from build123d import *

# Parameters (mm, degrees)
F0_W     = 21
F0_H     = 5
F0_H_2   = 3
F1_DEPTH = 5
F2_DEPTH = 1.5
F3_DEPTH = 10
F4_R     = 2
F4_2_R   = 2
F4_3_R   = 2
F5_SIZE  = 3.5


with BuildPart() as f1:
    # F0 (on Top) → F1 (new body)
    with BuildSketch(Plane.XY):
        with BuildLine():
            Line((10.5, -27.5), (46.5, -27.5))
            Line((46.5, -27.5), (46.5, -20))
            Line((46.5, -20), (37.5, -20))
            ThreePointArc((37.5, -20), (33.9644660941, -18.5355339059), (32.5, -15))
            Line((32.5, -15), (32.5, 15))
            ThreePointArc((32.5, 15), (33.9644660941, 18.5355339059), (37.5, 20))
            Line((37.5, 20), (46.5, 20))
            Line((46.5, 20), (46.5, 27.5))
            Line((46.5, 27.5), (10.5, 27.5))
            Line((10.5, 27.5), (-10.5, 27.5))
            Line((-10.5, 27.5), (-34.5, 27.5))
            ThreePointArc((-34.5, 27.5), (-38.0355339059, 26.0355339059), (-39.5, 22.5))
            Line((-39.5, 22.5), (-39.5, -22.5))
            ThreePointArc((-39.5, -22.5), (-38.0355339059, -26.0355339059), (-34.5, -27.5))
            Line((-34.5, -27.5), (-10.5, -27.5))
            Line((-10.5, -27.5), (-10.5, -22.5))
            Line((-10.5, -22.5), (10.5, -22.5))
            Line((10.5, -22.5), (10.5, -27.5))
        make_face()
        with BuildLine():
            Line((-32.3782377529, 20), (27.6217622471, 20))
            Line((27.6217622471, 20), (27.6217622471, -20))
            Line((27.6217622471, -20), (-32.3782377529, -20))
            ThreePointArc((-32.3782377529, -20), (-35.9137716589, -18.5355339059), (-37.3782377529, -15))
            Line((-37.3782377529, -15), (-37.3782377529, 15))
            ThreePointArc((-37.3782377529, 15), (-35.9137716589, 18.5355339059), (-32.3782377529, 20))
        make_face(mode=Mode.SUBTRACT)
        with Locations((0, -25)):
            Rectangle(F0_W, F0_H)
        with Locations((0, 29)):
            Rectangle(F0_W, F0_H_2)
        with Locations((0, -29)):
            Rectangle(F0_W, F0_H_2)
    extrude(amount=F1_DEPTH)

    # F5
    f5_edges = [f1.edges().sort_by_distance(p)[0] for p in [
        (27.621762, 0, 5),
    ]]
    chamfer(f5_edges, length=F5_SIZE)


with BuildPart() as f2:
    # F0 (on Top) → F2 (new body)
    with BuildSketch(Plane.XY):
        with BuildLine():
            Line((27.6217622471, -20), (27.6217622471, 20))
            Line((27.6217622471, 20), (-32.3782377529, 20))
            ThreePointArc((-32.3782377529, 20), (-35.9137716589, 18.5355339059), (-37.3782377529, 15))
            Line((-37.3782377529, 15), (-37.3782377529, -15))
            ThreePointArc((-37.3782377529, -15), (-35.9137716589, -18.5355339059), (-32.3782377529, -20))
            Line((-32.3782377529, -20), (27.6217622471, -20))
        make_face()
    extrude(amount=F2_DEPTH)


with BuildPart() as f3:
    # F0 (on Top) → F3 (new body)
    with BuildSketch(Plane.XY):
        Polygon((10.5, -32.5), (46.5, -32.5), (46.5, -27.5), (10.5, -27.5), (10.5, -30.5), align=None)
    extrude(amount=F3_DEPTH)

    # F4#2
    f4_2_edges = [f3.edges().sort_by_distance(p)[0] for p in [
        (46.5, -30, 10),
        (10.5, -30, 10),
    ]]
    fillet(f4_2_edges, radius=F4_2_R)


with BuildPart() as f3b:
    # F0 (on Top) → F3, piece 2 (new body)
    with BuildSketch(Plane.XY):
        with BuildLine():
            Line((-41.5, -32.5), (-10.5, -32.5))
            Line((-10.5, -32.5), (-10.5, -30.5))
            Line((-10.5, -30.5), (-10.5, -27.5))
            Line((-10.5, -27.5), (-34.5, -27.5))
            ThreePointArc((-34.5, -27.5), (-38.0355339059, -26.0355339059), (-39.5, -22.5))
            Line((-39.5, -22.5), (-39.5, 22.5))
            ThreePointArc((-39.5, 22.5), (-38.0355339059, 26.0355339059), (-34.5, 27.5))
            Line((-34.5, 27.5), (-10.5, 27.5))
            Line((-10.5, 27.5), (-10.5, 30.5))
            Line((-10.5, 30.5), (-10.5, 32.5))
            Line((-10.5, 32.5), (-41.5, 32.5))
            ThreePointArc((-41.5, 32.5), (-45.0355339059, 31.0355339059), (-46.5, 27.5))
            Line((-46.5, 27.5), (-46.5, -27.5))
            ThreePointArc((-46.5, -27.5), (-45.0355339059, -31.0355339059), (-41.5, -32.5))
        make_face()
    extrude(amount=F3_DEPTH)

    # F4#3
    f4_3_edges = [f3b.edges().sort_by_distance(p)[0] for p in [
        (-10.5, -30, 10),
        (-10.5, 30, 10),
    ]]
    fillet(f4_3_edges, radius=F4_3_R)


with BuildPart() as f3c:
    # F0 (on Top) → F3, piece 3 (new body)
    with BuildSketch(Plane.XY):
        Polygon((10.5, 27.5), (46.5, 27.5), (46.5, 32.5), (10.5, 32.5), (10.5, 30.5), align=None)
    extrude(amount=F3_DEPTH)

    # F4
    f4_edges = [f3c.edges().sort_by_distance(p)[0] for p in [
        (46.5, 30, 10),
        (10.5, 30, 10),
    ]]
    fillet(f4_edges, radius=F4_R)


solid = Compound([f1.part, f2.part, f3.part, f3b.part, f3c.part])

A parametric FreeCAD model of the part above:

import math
import FreeCAD as App
import Part
import Sketcher
from FreeCAD import Vector


def edges_at(feature, points):
    """Names of the edges that pass closest to the given points."""
    edges = feature.Shape.Edges
    near = lambda p: min(range(len(edges)), key=lambda i: edges[i].distToShape(Part.Vertex(*p))[0])
    return sorted({f"Edge{near(p) + 1}" for p in points})

doc = App.newDocument("Part")
params = doc.addObject("Spreadsheet::Sheet", "Params")
for row, (alias, value) in enumerate([
    ("sketch1_radius", "5 mm"),
    ("sketch1_width", "9 mm"),
    ("sketch1_width2", "36 mm"),
    ("sketch1_width3", "21 mm"),
    ("sketch1_width4", "24 mm"),
    ("pad1_length", "5 mm"),
    ("chamfer_size", "3.5 mm"),
    ("sketch2_radius", "5 mm"),
    ("sketch2_width", "60 mm"),
    ("sketch2_height", "40 mm"),
    ("pad2_length", "1.5 mm"),
    ("sketch3_width", "36 mm"),
    ("sketch3_height", "5 mm"),
    ("pad3_length", "10 mm"),
    ("fillet_radius", "2 mm"),
    ("sketch4_radius", "5 mm"),
    ("sketch4_width", "31 mm"),
    ("sketch4_width2", "24 mm"),
    ("sketch4_height", "45 mm"),
    ("pad4_length", "10 mm"),
    ("fillet2_radius", "2 mm"),
    ("sketch5_width", "36 mm"),
    ("sketch5_height", "5 mm"),
    ("pad5_length", "10 mm"),
    ("fillet3_radius", "2 mm"),
], start=1):
    params.set(f"A{row}", alias)
    params.set(f"B{row}", "=" + value)
    params.setAlias(f"B{row}", alias)

body = doc.addObject("PartDesign::Body", "Body")

sketch1 = body.newObject("Sketcher::SketchObject", "Sketch")
sketch1.AttachmentSupport = (doc.getObject("XY_Plane"), [""])
sketch1.MapMode = "FlatFace"
sketch1.addGeometry([
    Part.LineSegment(Vector(46.5, -27.5, 0), Vector(46.5, -20, 0)),
    Part.LineSegment(Vector(46.5, -20, 0), Vector(37.5, -20, 0)),
    Part.ArcOfCircle(Part.Circle(Vector(37.5, -15, 0), Vector(0, 0, 1), 5), math.radians(180), math.radians(270)),
    Part.LineSegment(Vector(32.5, -15, 0), Vector(32.5, 15, 0)),
    Part.ArcOfCircle(Part.Circle(Vector(37.5, 15, 0), Vector(0, 0, 1), 5), math.radians(90), math.radians(180)),
    Part.LineSegment(Vector(37.5, 20, 0), Vector(46.5, 20, 0)),
    Part.LineSegment(Vector(46.5, 20, 0), Vector(46.5, 27.5, 0)),
    Part.LineSegment(Vector(46.5, 27.5, 0), Vector(10.5, 27.5, 0)),
    Part.LineSegment(Vector(10.5, 27.5, 0), Vector(10.5, 30.5, 0)),
    Part.LineSegment(Vector(10.5, 30.5, 0), Vector(-10.5, 30.5, 0)),
    Part.LineSegment(Vector(-10.5, 30.5, 0), Vector(-10.5, 27.5, 0)),
    Part.LineSegment(Vector(-10.5, 27.5, 0), Vector(-34.5, 27.5, 0)),
    Part.ArcOfCircle(Part.Circle(Vector(-34.5, 22.5, 0), Vector(0, 0, 1), 5), math.radians(90), math.radians(180)),
    Part.LineSegment(Vector(-39.5, 22.5, 0), Vector(-39.5, -22.5, 0)),
    Part.ArcOfCircle(Part.Circle(Vector(-34.5, -22.5, 0), Vector(0, 0, 1), 5), math.radians(180), math.radians(270)),
    Part.LineSegment(Vector(-34.5, -27.5, 0), Vector(-10.5, -27.5, 0)),
    Part.LineSegment(Vector(-10.5, -27.5, 0), Vector(-10.5, -30.5, 0)),
    Part.LineSegment(Vector(-10.5, -30.5, 0), Vector(10.5, -30.5, 0)),
    Part.LineSegment(Vector(10.5, -30.5, 0), Vector(10.5, -27.5, 0)),
    Part.LineSegment(Vector(10.5, -27.5, 0), Vector(46.5, -27.5, 0)),
    Part.ArcOfCircle(Part.Circle(Vector(-32.378238, 15, 0), Vector(0, 0, 1), 5), math.radians(90), math.radians(180)),
    Part.LineSegment(Vector(-32.378238, 20, 0), Vector(27.621762, 20, 0)),
    Part.LineSegment(Vector(27.621762, 20, 0), Vector(27.621762, -20, 0)),
    Part.LineSegment(Vector(27.621762, -20, 0), Vector(-32.378238, -20, 0)),
    Part.ArcOfCircle(Part.Circle(Vector(-32.378238, -15, 0), Vector(0, 0, 1), 5), math.radians(180), math.radians(270)),
    Part.LineSegment(Vector(-37.378238, -15, 0), Vector(-37.378238, 15, 0)),
], False)
sketch1.addConstraint([
    Sketcher.Constraint("Coincident", 0, 2, 1, 1),
    Sketcher.Constraint("Tangent", 1, 2, 2, 2),
    Sketcher.Constraint("Tangent", 2, 1, 3, 1),
    Sketcher.Constraint("Tangent", 3, 2, 4, 2),
    Sketcher.Constraint("Tangent", 4, 1, 5, 1),
    Sketcher.Constraint("Coincident", 5, 2, 6, 1),
    Sketcher.Constraint("Coincident", 6, 2, 7, 1),
    Sketcher.Constraint("Coincident", 7, 2, 8, 1),
    Sketcher.Constraint("Coincident", 8, 2, 9, 1),
    Sketcher.Constraint("Coincident", 9, 2, 10, 1),
    Sketcher.Constraint("Coincident", 10, 2, 11, 1),
    Sketcher.Constraint("Tangent", 11, 2, 12, 1),
    Sketcher.Constraint("Tangent", 12, 2, 13, 1),
    Sketcher.Constraint("Tangent", 13, 2, 14, 1),
    Sketcher.Constraint("Tangent", 14, 2, 15, 1),
    Sketcher.Constraint("Coincident", 15, 2, 16, 1),
    Sketcher.Constraint("Coincident", 16, 2, 17, 1),
    Sketcher.Constraint("Coincident", 17, 2, 18, 1),
    Sketcher.Constraint("Coincident", 18, 2, 19, 1),
    Sketcher.Constraint("Coincident", 19, 2, 0, 1),
    Sketcher.Constraint("Tangent", 20, 1, 21, 1),
    Sketcher.Constraint("Coincident", 21, 2, 22, 1),
    Sketcher.Constraint("Coincident", 22, 2, 23, 1),
    Sketcher.Constraint("Tangent", 23, 2, 24, 2),
    Sketcher.Constraint("Tangent", 24, 1, 25, 1),
    Sketcher.Constraint("Tangent", 25, 2, 20, 2),
    Sketcher.Constraint("Vertical", 0),
    Sketcher.Constraint("Horizontal", 1),
    Sketcher.Constraint("Vertical", 3),
    Sketcher.Constraint("Horizontal", 5),
    Sketcher.Constraint("Vertical", 6),
    Sketcher.Constraint("Horizontal", 7),
    Sketcher.Constraint("Vertical", 8),
    Sketcher.Constraint("Horizontal", 9),
    Sketcher.Constraint("Vertical", 10),
    Sketcher.Constraint("Horizontal", 11),
    Sketcher.Constraint("Vertical", 13),
    Sketcher.Constraint("Horizontal", 15),
    Sketcher.Constraint("Vertical", 16),
    Sketcher.Constraint("Horizontal", 17),
    Sketcher.Constraint("Vertical", 18),
    Sketcher.Constraint("Horizontal", 19),
    Sketcher.Constraint("Horizontal", 21),
    Sketcher.Constraint("Vertical", 22),
    Sketcher.Constraint("Horizontal", 23),
    Sketcher.Constraint("Vertical", 25),
    Sketcher.Constraint("Equal", 2, 4),
    Sketcher.Constraint("Equal", 4, 12),
    Sketcher.Constraint("Equal", 12, 14),
    Sketcher.Constraint("Equal", 14, 20),
    Sketcher.Constraint("Equal", 20, 24),
    Sketcher.Constraint("Symmetric", 7, 2, 15, 2, -1, 1),
    Sketcher.Constraint("Symmetric", 9, 2, 17, 2, -1, 1),
    Sketcher.Constraint("Symmetric", 7, 2, 10, 2, -2),
    Sketcher.Constraint("Symmetric", 0, 2, 5, 2, -1),
    Sketcher.Constraint("Horizontal", 4, 3, 20, 3),
    Sketcher.Constraint("Horizontal", 2, 3, 24, 3),
    Sketcher.Constraint("Horizontal", 15, 2, 18, 2),
    Sketcher.Constraint("Radius", 2, 5.0),
    Sketcher.Constraint("DistanceX", 1, 2, 1, 1, 9.0),
    Sketcher.Constraint("DistanceX", 7, 2, 7, 1, 36.0),
    Sketcher.Constraint("DistanceX", 9, 2, 9, 1, 21.0),
    Sketcher.Constraint("DistanceX", 11, 2, 11, 1, 24.0),
    Sketcher.Constraint("DistanceX", 21, 1, 21, 2, 60.0),
    Sketcher.Constraint("DistanceY", 3, 1, 3, 2, 30.0),
    Sketcher.Constraint("DistanceY", 8, 1, 8, 2, 3.0),
    Sketcher.Constraint("DistanceY", 13, 2, 13, 1, 45.0),
    Sketcher.Constraint("DistanceX", 20, 3, -1, 1, 32.378238),
])
sketch1.setExpression("Constraints[58]", "Params.sketch1_radius")
sketch1.setExpression("Constraints[59]", "Params.sketch1_width")
sketch1.setExpression("Constraints[60]", "Params.sketch1_width2")
sketch1.setExpression("Constraints[61]", "Params.sketch1_width3")
sketch1.setExpression("Constraints[62]", "Params.sketch1_width4")
pad1 = body.newObject("PartDesign::Pad", "Pad")
pad1.Profile = sketch1
pad1.setExpression("Length", "Params.pad1_length")
doc.recompute()

chamfer = body.newObject("PartDesign::Chamfer", "Chamfer")
chamfer.Base = (pad1, edges_at(pad1, [(27.622, 0, 5)]))
chamfer.setExpression("Size", "Params.chamfer_size")
body2 = doc.addObject("PartDesign::Body", "Body001")

sketch2 = body2.newObject("Sketcher::SketchObject", "Sketch001")
sketch2.AttachmentSupport = (doc.getObject("XY_Plane001"), [""])
sketch2.MapMode = "FlatFace"
sketch2.addGeometry([
    Part.LineSegment(Vector(27.621762, -20, 0), Vector(27.621762, 20, 0)),
    Part.LineSegment(Vector(27.621762, 20, 0), Vector(-32.378238, 20, 0)),
    Part.ArcOfCircle(Part.Circle(Vector(-32.378238, 15, 0), Vector(0, 0, 1), 5), math.radians(90), math.radians(180)),
    Part.LineSegment(Vector(-37.378238, 15, 0), Vector(-37.378238, -15, 0)),
    Part.ArcOfCircle(Part.Circle(Vector(-32.378238, -15, 0), Vector(0, 0, 1), 5), math.radians(180), math.radians(270)),
    Part.LineSegment(Vector(-32.378238, -20, 0), Vector(27.621762, -20, 0)),
], False)
sketch2.addConstraint([
    Sketcher.Constraint("Coincident", 0, 2, 1, 1),
    Sketcher.Constraint("Tangent", 1, 2, 2, 1),
    Sketcher.Constraint("Tangent", 2, 2, 3, 1),
    Sketcher.Constraint("Tangent", 3, 2, 4, 1),
    Sketcher.Constraint("Tangent", 4, 2, 5, 1),
    Sketcher.Constraint("Coincident", 5, 2, 0, 1),
    Sketcher.Constraint("Vertical", 0),
    Sketcher.Constraint("Horizontal", 1),
    Sketcher.Constraint("Vertical", 3),
    Sketcher.Constraint("Horizontal", 5),
    Sketcher.Constraint("Equal", 2, 4),
    Sketcher.Constraint("Radius", 2, 5.0),
    Sketcher.Constraint("DistanceX", 1, 2, 1, 1, 60.0),
    Sketcher.Constraint("DistanceY", 0, 1, 0, 2, 40.0),
    Sketcher.Constraint("DistanceY", -1, 1, 2, 3, 15.0),
    Sketcher.Constraint("DistanceX", 2, 3, -1, 1, 32.378238),
])
sketch2.setExpression("Constraints[11]", "Params.sketch2_radius")
sketch2.setExpression("Constraints[12]", "Params.sketch2_width")
sketch2.setExpression("Constraints[13]", "Params.sketch2_height")
pad2 = body2.newObject("PartDesign::Pad", "Pad001")
pad2.Profile = sketch2
pad2.setExpression("Length", "Params.pad2_length")
body3 = doc.addObject("PartDesign::Body", "Body002")

sketch3 = body3.newObject("Sketcher::SketchObject", "Sketch002")
sketch3.AttachmentSupport = (doc.getObject("XY_Plane002"), [""])
sketch3.MapMode = "FlatFace"
sketch3.addGeometry([
    Part.LineSegment(Vector(10.5, -32.5, 0), Vector(46.5, -32.5, 0)),
    Part.LineSegment(Vector(46.5, -32.5, 0), Vector(46.5, -27.5, 0)),
    Part.LineSegment(Vector(46.5, -27.5, 0), Vector(10.5, -27.5, 0)),
    Part.LineSegment(Vector(10.5, -27.5, 0), Vector(10.5, -32.5, 0)),
], False)
sketch3.addConstraint([
    Sketcher.Constraint("Coincident", 0, 2, 1, 1),
    Sketcher.Constraint("Coincident", 1, 2, 2, 1),
    Sketcher.Constraint("Coincident", 2, 2, 3, 1),
    Sketcher.Constraint("Coincident", 3, 2, 0, 1),
    Sketcher.Constraint("Horizontal", 0),
    Sketcher.Constraint("Vertical", 1),
    Sketcher.Constraint("Horizontal", 2),
    Sketcher.Constraint("Vertical", 3),
    Sketcher.Constraint("DistanceX", 0, 1, 0, 2, 36.0),
    Sketcher.Constraint("DistanceY", 1, 1, 1, 2, 5.0),
    Sketcher.Constraint("DistanceX", -1, 1, 0, 2, 46.5),
    Sketcher.Constraint("DistanceY", 0, 2, -1, 1, 32.5),
])
sketch3.setExpression("Constraints[8]", "Params.sketch3_width")
sketch3.setExpression("Constraints[9]", "Params.sketch3_height")
pad3 = body3.newObject("PartDesign::Pad", "Pad002")
pad3.Profile = sketch3
pad3.setExpression("Length", "Params.pad3_length")
doc.recompute()

fillet = body3.newObject("PartDesign::Fillet", "Fillet")
fillet.Base = (pad3, edges_at(pad3, [(46.5, -30, 10), (10.5, -30, 10)]))
fillet.setExpression("Radius", "Params.fillet_radius")
body4 = doc.addObject("PartDesign::Body", "Body003")

sketch4 = body4.newObject("Sketcher::SketchObject", "Sketch003")
sketch4.AttachmentSupport = (doc.getObject("XY_Plane003"), [""])
sketch4.MapMode = "FlatFace"
sketch4.addGeometry([
    Part.LineSegment(Vector(-41.5, -32.5, 0), Vector(-10.5, -32.5, 0)),
    Part.LineSegment(Vector(-10.5, -32.5, 0), Vector(-10.5, -27.5, 0)),
    Part.LineSegment(Vector(-10.5, -27.5, 0), Vector(-34.5, -27.5, 0)),
    Part.ArcOfCircle(Part.Circle(Vector(-34.5, -22.5, 0), Vector(0, 0, 1), 5), math.radians(180), math.radians(270)),
    Part.LineSegment(Vector(-39.5, -22.5, 0), Vector(-39.5, 22.5, 0)),
    Part.ArcOfCircle(Part.Circle(Vector(-34.5, 22.5, 0), Vector(0, 0, 1), 5), math.radians(90), math.radians(180)),
    Part.LineSegment(Vector(-34.5, 27.5, 0), Vector(-10.5, 27.5, 0)),
    Part.LineSegment(Vector(-10.5, 27.5, 0), Vector(-10.5, 32.5, 0)),
    Part.LineSegment(Vector(-10.5, 32.5, 0), Vector(-41.5, 32.5, 0)),
    Part.ArcOfCircle(Part.Circle(Vector(-41.5, 27.5, 0), Vector(0, 0, 1), 5), math.radians(90), math.radians(180)),
    Part.LineSegment(Vector(-46.5, 27.5, 0), Vector(-46.5, -27.5, 0)),
    Part.ArcOfCircle(Part.Circle(Vector(-41.5, -27.5, 0), Vector(0, 0, 1), 5), math.radians(180), math.radians(270)),
], False)
sketch4.addConstraint([
    Sketcher.Constraint("Coincident", 0, 2, 1, 1),
    Sketcher.Constraint("Coincident", 1, 2, 2, 1),
    Sketcher.Constraint("Tangent", 2, 2, 3, 2),
    Sketcher.Constraint("Tangent", 3, 1, 4, 1),
    Sketcher.Constraint("Tangent", 4, 2, 5, 2),
    Sketcher.Constraint("Tangent", 5, 1, 6, 1),
    Sketcher.Constraint("Coincident", 6, 2, 7, 1),
    Sketcher.Constraint("Coincident", 7, 2, 8, 1),
    Sketcher.Constraint("Tangent", 8, 2, 9, 1),
    Sketcher.Constraint("Tangent", 9, 2, 10, 1),
    Sketcher.Constraint("Tangent", 10, 2, 11, 1),
    Sketcher.Constraint("Tangent", 11, 2, 0, 1),
    Sketcher.Constraint("Horizontal", 0),
    Sketcher.Constraint("Vertical", 1),
    Sketcher.Constraint("Horizontal", 2),
    Sketcher.Constraint("Vertical", 4),
    Sketcher.Constraint("Horizontal", 6),
    Sketcher.Constraint("Vertical", 7),
    Sketcher.Constraint("Horizontal", 8),
    Sketcher.Constraint("Vertical", 10),
    Sketcher.Constraint("Equal", 3, 5),
    Sketcher.Constraint("Equal", 5, 9),
    Sketcher.Constraint("Equal", 9, 11),
    Sketcher.Constraint("Symmetric", 1, 2, 6, 2, -1),
    Sketcher.Constraint("Horizontal", 11, 3, 1, 2),
    Sketcher.Constraint("Horizontal", 9, 3, 5, 1),
    Sketcher.Constraint("Radius", 3, 5.0),
    Sketcher.Constraint("DistanceX", 0, 1, 0, 2, 31.0),
    Sketcher.Constraint("DistanceX", 2, 2, 2, 1, 24.0),
    Sketcher.Constraint("DistanceY", 4, 1, 4, 2, 45.0),
    Sketcher.Constraint("DistanceX", 3, 3, -1, 1, 34.5),
])
sketch4.setExpression("Constraints[26]", "Params.sketch4_radius")
sketch4.setExpression("Constraints[27]", "Params.sketch4_width")
sketch4.setExpression("Constraints[28]", "Params.sketch4_width2")
sketch4.setExpression("Constraints[29]", "Params.sketch4_height")
pad4 = body4.newObject("PartDesign::Pad", "Pad003")
pad4.Profile = sketch4
pad4.setExpression("Length", "Params.pad4_length")
doc.recompute()

fillet2 = body4.newObject("PartDesign::Fillet", "Fillet001")
fillet2.Base = (pad4, edges_at(pad4, [(-10.5, -30, 10), (-10.5, 30, 10)]))
fillet2.setExpression("Radius", "Params.fillet2_radius")
body5 = doc.addObject("PartDesign::Body", "Body004")

sketch5 = body5.newObject("Sketcher::SketchObject", "Sketch004")
sketch5.AttachmentSupport = (doc.getObject("XY_Plane004"), [""])
sketch5.MapMode = "FlatFace"
sketch5.addGeometry([
    Part.LineSegment(Vector(10.5, 27.5, 0), Vector(46.5, 27.5, 0)),
    Part.LineSegment(Vector(46.5, 27.5, 0), Vector(46.5, 32.5, 0)),
    Part.LineSegment(Vector(46.5, 32.5, 0), Vector(10.5, 32.5, 0)),
    Part.LineSegment(Vector(10.5, 32.5, 0), Vector(10.5, 27.5, 0)),
], False)
sketch5.addConstraint([
    Sketcher.Constraint("Coincident", 0, 2, 1, 1),
    Sketcher.Constraint("Coincident", 1, 2, 2, 1),
    Sketcher.Constraint("Coincident", 2, 2, 3, 1),
    Sketcher.Constraint("Coincident", 3, 2, 0, 1),
    Sketcher.Constraint("Horizontal", 0),
    Sketcher.Constraint("Vertical", 1),
    Sketcher.Constraint("Horizontal", 2),
    Sketcher.Constraint("Vertical", 3),
    Sketcher.Constraint("DistanceX", 0, 1, 0, 2, 36.0),
    Sketcher.Constraint("DistanceY", 1, 1, 1, 2, 5.0),
    Sketcher.Constraint("DistanceX", -1, 1, 0, 2, 46.5),
    Sketcher.Constraint("DistanceY", -1, 1, 0, 2, 27.5),
])
sketch5.setExpression("Constraints[8]", "Params.sketch5_width")
sketch5.setExpression("Constraints[9]", "Params.sketch5_height")
pad5 = body5.newObject("PartDesign::Pad", "Pad004")
pad5.Profile = sketch5
pad5.setExpression("Length", "Params.pad5_length")
doc.recompute()

fillet3 = body5.newObject("PartDesign::Fillet", "Fillet002")
fillet3.Base = (pad5, edges_at(pad5, [(46.5, 30, 10), (10.5, 30, 10)]))
fillet3.setExpression("Radius", "Params.fillet3_radius")

doc.recompute()
